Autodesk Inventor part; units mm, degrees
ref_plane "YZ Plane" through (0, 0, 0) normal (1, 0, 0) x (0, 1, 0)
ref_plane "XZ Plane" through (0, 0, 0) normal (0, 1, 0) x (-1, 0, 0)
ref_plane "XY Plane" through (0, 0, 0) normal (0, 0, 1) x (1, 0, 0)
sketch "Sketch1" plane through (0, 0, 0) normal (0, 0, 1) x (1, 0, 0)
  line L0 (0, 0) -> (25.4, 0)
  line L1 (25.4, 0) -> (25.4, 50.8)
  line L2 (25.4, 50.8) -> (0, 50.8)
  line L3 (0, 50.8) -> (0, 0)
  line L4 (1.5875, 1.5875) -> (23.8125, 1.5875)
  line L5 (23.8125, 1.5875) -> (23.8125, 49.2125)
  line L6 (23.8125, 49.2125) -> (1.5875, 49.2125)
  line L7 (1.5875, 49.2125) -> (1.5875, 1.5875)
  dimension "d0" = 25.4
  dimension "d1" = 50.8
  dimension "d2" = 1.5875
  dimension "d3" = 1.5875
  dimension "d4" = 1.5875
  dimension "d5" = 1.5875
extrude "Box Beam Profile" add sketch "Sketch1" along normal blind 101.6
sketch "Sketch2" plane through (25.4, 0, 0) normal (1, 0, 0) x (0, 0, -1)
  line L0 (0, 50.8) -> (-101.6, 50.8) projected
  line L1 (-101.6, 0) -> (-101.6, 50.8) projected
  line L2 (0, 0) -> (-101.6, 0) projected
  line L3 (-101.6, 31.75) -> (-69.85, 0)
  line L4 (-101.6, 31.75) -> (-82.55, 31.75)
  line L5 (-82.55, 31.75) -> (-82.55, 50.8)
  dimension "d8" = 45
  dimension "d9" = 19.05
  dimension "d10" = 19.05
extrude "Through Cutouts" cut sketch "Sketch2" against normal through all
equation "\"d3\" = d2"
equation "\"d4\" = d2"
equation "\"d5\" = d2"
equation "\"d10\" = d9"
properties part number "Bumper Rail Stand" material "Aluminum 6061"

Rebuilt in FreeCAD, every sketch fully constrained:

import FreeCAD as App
import Part
import Sketcher
from FreeCAD import Vector
Q = App.Units.Quantity


def add_polygon(sketch, points):
    """Adds a closed chain of lines whose ends are joined by coincident constraints."""
    first, n = sketch.GeometryCount, len(points)
    for a, b in zip(points, points[1:] + points[:1]):
        sketch.addGeometry(Part.LineSegment(App.Vector(*a, 0), App.Vector(*b, 0)), False)
    for i in range(n):
        sketch.addConstraint(Sketcher.Constraint("Coincident", first + i, 2, first + (i + 1) % n, 1))

doc = App.newDocument("Part")
body = doc.addObject("PartDesign::Body", "Body")

sketch1 = body.newObject("Sketcher::SketchObject", "Sketch")
sketch1.AttachmentSupport = (doc.getObject("XY_Plane"), [""])
sketch1.MapMode = "FlatFace"
add_polygon(sketch1, [(0, 51), (0, 0), (25, 0), (25, 51)])
add_polygon(sketch1, [(24, 2), (2, 2), (2, 49), (24, 49)])
sketch1.addConstraint([
    Sketcher.Constraint("Vertical", 0),
    Sketcher.Constraint("Horizontal", 1),
    Sketcher.Constraint("Vertical", 2),
    Sketcher.Constraint("Horizontal", 3),
    Sketcher.Constraint("Horizontal", 4),
    Sketcher.Constraint("Vertical", 5),
    Sketcher.Constraint("Horizontal", 6),
    Sketcher.Constraint("Vertical", 7),
    Sketcher.Constraint("Coincident", 0, 2, -1, 1),
    Sketcher.Constraint("DistanceX", 1, 1, 1, 2, Q("1 in")),
    Sketcher.Constraint("DistanceY", 0, 2, 0, 1, Q("2 in")),
    Sketcher.Constraint("DistanceX", -1, 1, 4, 2, Q("0.0625 in")),
    Sketcher.Constraint("DistanceY", -1, 1, 4, 2, Q("0.0625 in")),
    Sketcher.Constraint("DistanceY", 5, 2, 3, 2, Q("0.0625 in")),
    Sketcher.Constraint("DistanceX", 6, 2, 2, 2, Q("0.0625 in")),
])
pad1 = body.newObject("PartDesign::Pad", "Pad")
pad1.Profile = sketch1
pad1.Length = Q("4 in")

sketch2 = body.newObject("Sketcher::SketchObject", "Sketch001")
sketch2.AttachmentSupport = (doc.getObject("YZ_Plane"), [""])
sketch2.MapMode = "FlatFace"
sketch2.AttachmentOffset = App.Placement(Vector(0, 0, 1 * 25.4), App.Rotation())
add_polygon(sketch2, [(32, 83), (51, 83), (51, 102), (32, 102)])
add_polygon(sketch2, [(0, 70), (32, 102), (0, 102)])
sketch2.addConstraint([
    Sketcher.Constraint("Horizontal", 0),
    Sketcher.Constraint("Vertical", 1),
    Sketcher.Constraint("Horizontal", 2),
    Sketcher.Constraint("Vertical", 3),
    Sketcher.Constraint("Horizontal", 5),
    Sketcher.Constraint("Vertical", 6),
    Sketcher.Constraint("Coincident", 4, 2, 2, 2),
    Sketcher.Constraint("PointOnObject", 5, 2, -2),
    Sketcher.Constraint("Equal", 2, 1),
    Sketcher.Constraint("Equal", 5, 6),
    Sketcher.Constraint("DistanceX", 0, 1, 0, 2, Q("0.75 in")),
    Sketcher.Constraint("DistanceX", -1, 1, 0, 2, Q("2 in")),
    Sketcher.Constraint("DistanceY", -1, 1, 1, 2, Q("4 in")),
])
pocket1 = body.newObject("PartDesign::Pocket", "Pocket")
pocket1.Profile = sketch2
pocket1.Type = "ThroughAll"

doc.recompute()
